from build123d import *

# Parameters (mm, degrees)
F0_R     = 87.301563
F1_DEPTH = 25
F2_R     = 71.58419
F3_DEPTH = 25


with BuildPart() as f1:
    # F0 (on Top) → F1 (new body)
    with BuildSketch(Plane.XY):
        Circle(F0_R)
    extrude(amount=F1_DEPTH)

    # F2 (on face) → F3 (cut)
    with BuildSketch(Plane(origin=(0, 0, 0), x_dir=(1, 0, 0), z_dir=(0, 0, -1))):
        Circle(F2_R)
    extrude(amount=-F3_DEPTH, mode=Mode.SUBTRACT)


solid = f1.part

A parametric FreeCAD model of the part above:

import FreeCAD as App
import Part
import Sketcher
from FreeCAD import Vector

doc = App.newDocument("Part")
body = doc.addObject("PartDesign::Body", "Body")

sketch1 = body.newObject("Sketcher::SketchObject", "Sketch")
sketch1.AttachmentSupport = (doc.getObject("XY_Plane"), [""])
sketch1.MapMode = "FlatFace"
sketch1.addGeometry(Part.Circle(Vector(0, 0, 0), Vector(0, 0, 1), 87.301563), False)
sketch1.addConstraint([
    Sketcher.Constraint("Coincident", 0, 3, -1, 1),
    Sketcher.Constraint("Diameter", 0, 174.603126),
])
pad1 = body.newObject("PartDesign::Pad", "Pad")
pad1.Profile = sketch1
pad1.Length = 25

sketch2 = body.newObject("Sketcher::SketchObject", "Sketch001")
sketch2.AttachmentSupport = (doc.getObject("XY_Plane"), [""])
sketch2.MapMode = "FlatFace"
sketch2.addGeometry(Part.Circle(Vector(0, 0, 0), Vector(0, 0, 1), 71.58419), False)
sketch2.addConstraint([
    Sketcher.Constraint("Coincident", 0, 3, -1, 1),
    Sketcher.Constraint("Diameter", 0, 143.16838),
])
pocket1 = body.newObject("PartDesign::Pocket", "Pocket")
pocket1.Profile = sketch2
pocket1.Length = 25
pocket1.Reversed = True

doc.recompute()
